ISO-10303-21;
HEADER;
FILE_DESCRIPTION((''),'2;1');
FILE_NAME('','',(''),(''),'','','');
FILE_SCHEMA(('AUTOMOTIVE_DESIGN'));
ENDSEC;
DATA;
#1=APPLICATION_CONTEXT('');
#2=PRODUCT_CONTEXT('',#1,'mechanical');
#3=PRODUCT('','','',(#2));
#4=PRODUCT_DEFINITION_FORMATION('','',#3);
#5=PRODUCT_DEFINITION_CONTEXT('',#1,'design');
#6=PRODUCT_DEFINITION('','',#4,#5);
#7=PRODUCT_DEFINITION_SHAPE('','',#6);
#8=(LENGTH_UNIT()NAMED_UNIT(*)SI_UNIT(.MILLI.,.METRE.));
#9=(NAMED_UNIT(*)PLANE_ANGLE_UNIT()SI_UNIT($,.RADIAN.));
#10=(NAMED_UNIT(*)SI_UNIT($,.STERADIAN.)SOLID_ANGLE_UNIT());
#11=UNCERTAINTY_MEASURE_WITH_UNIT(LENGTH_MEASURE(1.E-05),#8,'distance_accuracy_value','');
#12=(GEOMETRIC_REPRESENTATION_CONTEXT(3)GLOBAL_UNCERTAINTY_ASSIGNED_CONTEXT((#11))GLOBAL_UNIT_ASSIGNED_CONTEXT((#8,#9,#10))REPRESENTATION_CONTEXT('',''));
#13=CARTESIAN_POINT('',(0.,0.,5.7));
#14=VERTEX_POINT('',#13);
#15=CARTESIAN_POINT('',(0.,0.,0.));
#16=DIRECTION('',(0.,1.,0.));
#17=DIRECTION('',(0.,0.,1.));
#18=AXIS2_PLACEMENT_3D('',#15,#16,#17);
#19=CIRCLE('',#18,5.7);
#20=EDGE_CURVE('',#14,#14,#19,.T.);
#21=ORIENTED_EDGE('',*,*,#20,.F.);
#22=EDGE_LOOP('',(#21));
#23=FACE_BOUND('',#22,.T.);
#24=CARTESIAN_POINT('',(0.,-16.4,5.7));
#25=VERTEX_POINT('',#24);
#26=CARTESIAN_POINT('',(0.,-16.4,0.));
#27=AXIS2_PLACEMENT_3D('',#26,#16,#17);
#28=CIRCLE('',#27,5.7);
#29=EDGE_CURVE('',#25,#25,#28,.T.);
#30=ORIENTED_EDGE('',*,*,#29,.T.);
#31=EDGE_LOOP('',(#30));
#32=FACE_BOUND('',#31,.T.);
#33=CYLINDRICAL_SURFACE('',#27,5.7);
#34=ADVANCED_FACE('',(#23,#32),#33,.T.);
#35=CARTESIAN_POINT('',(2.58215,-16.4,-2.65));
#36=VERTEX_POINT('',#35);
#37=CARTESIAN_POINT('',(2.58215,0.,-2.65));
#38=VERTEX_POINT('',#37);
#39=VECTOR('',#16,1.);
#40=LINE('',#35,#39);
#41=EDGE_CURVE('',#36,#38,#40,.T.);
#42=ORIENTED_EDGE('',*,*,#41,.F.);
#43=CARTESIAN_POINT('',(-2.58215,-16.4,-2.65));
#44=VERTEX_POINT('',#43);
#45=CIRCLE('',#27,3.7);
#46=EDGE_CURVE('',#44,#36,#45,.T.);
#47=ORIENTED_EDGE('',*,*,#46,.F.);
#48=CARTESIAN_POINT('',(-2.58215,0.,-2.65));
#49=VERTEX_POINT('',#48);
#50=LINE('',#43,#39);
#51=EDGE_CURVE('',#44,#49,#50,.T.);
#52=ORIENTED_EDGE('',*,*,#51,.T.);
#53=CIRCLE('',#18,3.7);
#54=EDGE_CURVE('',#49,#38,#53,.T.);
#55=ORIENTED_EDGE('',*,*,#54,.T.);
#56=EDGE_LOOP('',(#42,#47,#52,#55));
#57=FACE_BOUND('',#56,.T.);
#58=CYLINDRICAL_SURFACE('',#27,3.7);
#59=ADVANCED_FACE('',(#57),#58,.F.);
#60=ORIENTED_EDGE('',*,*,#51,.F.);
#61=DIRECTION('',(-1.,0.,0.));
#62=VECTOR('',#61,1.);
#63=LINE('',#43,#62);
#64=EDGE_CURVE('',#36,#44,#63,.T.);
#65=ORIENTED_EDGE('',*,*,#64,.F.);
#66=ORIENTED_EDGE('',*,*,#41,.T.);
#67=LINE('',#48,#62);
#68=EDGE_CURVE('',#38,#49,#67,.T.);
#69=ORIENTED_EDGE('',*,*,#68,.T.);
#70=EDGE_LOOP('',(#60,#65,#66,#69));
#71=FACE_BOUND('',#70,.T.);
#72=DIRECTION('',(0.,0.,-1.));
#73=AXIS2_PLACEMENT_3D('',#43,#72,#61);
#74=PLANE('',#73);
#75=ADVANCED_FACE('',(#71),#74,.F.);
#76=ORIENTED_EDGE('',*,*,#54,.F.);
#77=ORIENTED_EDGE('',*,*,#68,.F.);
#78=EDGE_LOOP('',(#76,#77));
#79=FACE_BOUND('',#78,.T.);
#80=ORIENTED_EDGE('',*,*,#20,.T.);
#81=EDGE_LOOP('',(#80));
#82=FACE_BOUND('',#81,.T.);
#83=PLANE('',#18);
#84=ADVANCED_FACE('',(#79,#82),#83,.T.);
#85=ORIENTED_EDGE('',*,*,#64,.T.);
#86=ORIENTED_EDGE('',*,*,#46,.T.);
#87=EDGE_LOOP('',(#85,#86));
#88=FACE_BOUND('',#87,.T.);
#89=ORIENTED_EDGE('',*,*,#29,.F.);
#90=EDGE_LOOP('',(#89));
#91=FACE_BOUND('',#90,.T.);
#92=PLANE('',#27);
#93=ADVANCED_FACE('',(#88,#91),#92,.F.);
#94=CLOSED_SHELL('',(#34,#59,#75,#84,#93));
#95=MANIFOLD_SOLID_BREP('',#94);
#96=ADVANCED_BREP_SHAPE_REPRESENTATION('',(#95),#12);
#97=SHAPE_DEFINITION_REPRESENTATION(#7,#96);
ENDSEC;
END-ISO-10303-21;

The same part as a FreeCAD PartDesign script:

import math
import FreeCAD as App
import Part
import Sketcher

V = App.Vector
Q = App.Units.Quantity

doc = App.newDocument("Part")
body = doc.addObject("PartDesign::Body", "Body")

sketch1 = doc.addObject("Sketcher::SketchObject", "Sketch")
body.addObject(sketch1)
sketch1.AttachmentSupport = (doc.XZ_Plane, [""])
sketch1.MapMode = "FlatFace"
sketch1.addGeometry(Part.Circle(V(0, 0, 0), V(0, 0, 1), 6), False)
sketch1.addConstraint([
    Sketcher.Constraint("Coincident", 0, 3, -1, 1),
    Sketcher.Constraint("Diameter", 0, Q("11.4 mm")),
])
pad1 = doc.addObject("PartDesign::Pad", "Pad")
body.addObject(pad1)
pad1.Profile = sketch1
pad1.Length = 16.4

sketch2 = doc.addObject("Sketcher::SketchObject", "Sketch001")
body.addObject(sketch2)
sketch2.AttachmentSupport = (doc.XZ_Plane, [""])
sketch2.MapMode = "FlatFace"
sketch2.addGeometry([
    Part.LineSegment(V(2.6, -2.6, 0), V(-2.6, -2.6, 0)),
    Part.ArcOfCircle(Part.Circle(V(0, 0, 0), V(0, 0, 1), 3.7), math.radians(-46), math.radians(226)),
], False)
sketch2.addConstraint([
    Sketcher.Constraint("Coincident", 0, 1, 1, 1),
    Sketcher.Constraint("Coincident", 1, 2, 0, 2),
    Sketcher.Constraint("Horizontal", 0),
    Sketcher.Constraint("Coincident", 1, 3, -1, 1),
    Sketcher.Constraint("Radius", 1, Q("3.7 mm")),
    Sketcher.Constraint("DistanceY", 0, 1, -1, 1, Q("2.65 mm")),
])
pocket1 = doc.addObject("PartDesign::Pocket", "Pocket")
body.addObject(pocket1)
pocket1.Profile = sketch2
pocket1.Type = "ThroughAll"
pocket1.Reversed = True

doc.recompute()
